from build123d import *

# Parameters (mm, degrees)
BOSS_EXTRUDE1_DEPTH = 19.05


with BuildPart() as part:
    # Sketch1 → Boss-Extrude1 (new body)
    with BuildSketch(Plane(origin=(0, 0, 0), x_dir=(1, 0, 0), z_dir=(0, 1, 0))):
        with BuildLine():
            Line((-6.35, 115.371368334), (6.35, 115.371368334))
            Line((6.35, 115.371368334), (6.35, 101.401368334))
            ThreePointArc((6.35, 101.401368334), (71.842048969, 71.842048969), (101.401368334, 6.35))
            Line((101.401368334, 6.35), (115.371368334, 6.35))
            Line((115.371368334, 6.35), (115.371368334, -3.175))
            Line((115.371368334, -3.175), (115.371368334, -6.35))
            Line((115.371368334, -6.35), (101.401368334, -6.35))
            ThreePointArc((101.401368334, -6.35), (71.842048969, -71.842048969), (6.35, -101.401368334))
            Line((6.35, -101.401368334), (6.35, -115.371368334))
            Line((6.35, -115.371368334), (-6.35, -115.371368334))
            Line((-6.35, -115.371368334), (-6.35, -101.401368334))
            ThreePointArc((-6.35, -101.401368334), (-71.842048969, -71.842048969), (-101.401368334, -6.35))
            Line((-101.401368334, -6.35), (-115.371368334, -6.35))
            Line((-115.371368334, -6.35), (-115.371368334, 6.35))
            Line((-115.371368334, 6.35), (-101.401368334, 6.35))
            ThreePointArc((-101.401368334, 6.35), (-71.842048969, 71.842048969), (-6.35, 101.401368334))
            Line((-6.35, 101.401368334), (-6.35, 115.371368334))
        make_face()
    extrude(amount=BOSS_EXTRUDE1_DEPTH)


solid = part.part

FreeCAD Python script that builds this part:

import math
import FreeCAD as App
import Part
import Sketcher
from FreeCAD import Vector
Q = App.Units.Quantity

doc = App.newDocument("Part")
body = doc.addObject("PartDesign::Body", "Body")

# Sketch on XZ plane
sketch1 = doc.addObject("Sketcher::SketchObject", "Sketch")
body.addObject(sketch1)
sketch1.AttachmentSupport = (doc.XZ_Plane, [""])
sketch1.MapMode = "FlatFace"
sketch1.addGeometry([
    Part.LineSegment(Vector(6.35, -115.371368, 0), Vector(-6.35, -115.371368, 0)),  # 0
    Part.LineSegment(Vector(-6.35, -115.371368, 0), Vector(-6.35, -101.401368, 0)),  # 1
    Part.ArcOfCircle(Part.Circle(Vector(0, 0, 0), Vector(0, 0, 1), 101.6), math.radians(-176.416678), math.radians(-93.583322)),  # 2
    Part.LineSegment(Vector(-101.401368, -6.35, 0), Vector(-115.371368, -6.35, 0)),  # 3
    Part.LineSegment(Vector(-115.371368, -6.35, 0), Vector(-115.371368, 6.35, 0)),  # 4
    Part.LineSegment(Vector(-115.371368, 6.35, 0), Vector(-101.401368, 6.35, 0)),  # 5
    Part.ArcOfCircle(Part.Circle(Vector(0, 0, 0), Vector(0, 0, 1), 101.6), math.radians(93.583322), math.radians(176.416678)),  # 6
    Part.LineSegment(Vector(-6.35, 101.401368, 0), Vector(-6.35, 115.371368, 0)),  # 7
    Part.LineSegment(Vector(-6.35, 115.371368, 0), Vector(6.35, 115.371368, 0)),  # 8
    Part.LineSegment(Vector(6.35, 115.371368, 0), Vector(6.35, 101.401368, 0)),  # 9
    Part.ArcOfCircle(Part.Circle(Vector(0, 0, 0), Vector(0, 0, 1), 101.6), math.radians(3.583322), math.radians(86.416678)),  # 10
    Part.LineSegment(Vector(101.401368, 6.35, 0), Vector(115.371368, 6.35, 0)),  # 11
    Part.LineSegment(Vector(115.371368, 6.35, 0), Vector(115.371368, -6.35, 0)),  # 12
    Part.LineSegment(Vector(115.371368, -6.35, 0), Vector(101.401368, -6.35, 0)),  # 13
    Part.ArcOfCircle(Part.Circle(Vector(0, 0, 0), Vector(0, 0, 1), 101.6), math.radians(-86.416678), math.radians(-3.583322)),  # 14
    Part.LineSegment(Vector(6.35, -101.401368, 0), Vector(6.35, -115.371368, 0)),  # 15
], False)
sketch1.addConstraint([
    Sketcher.Constraint("Coincident", 0, 2, 1, 1),
    Sketcher.Constraint("Coincident", 1, 2, 2, 2),
    Sketcher.Constraint("Coincident", 2, 1, 3, 1),
    Sketcher.Constraint("Coincident", 3, 2, 4, 1),
    Sketcher.Constraint("Coincident", 4, 2, 5, 1),
    Sketcher.Constraint("Coincident", 5, 2, 6, 2),
    Sketcher.Constraint("Coincident", 6, 1, 7, 1),
    Sketcher.Constraint("Coincident", 7, 2, 8, 1),
    Sketcher.Constraint("Coincident", 8, 2, 9, 1),
    Sketcher.Constraint("Coincident", 9, 2, 10, 2),
    Sketcher.Constraint("Coincident", 10, 1, 11, 1),
    Sketcher.Constraint("Coincident", 11, 2, 12, 1),
    Sketcher.Constraint("Coincident", 12, 2, 13, 1),
    Sketcher.Constraint("Coincident", 13, 2, 14, 2),
    Sketcher.Constraint("Coincident", 14, 1, 15, 1),
    Sketcher.Constraint("Coincident", 15, 2, 0, 1),
    Sketcher.Constraint("Horizontal", 0),
    Sketcher.Constraint("Vertical", 1),
    Sketcher.Constraint("Horizontal", 3),
    Sketcher.Constraint("Vertical", 4),
    Sketcher.Constraint("Horizontal", 5),
    Sketcher.Constraint("Vertical", 7),
    Sketcher.Constraint("Horizontal", 8),
    Sketcher.Constraint("Vertical", 9),
    Sketcher.Constraint("Horizontal", 11),
    Sketcher.Constraint("Vertical", 12),
    Sketcher.Constraint("Horizontal", 13),
    Sketcher.Constraint("Vertical", 15),
    Sketcher.Constraint("Coincident", 2, 3, -1, 1),
    Sketcher.Constraint("Coincident", 6, 3, -1, 1),
    Sketcher.Constraint("Coincident", 10, 3, -1, 1),
    Sketcher.Constraint("Coincident", 14, 3, -1, 1),
    Sketcher.Constraint("Equal", 2, 6),
    Sketcher.Constraint("Equal", 6, 10),
    Sketcher.Constraint("Equal", 10, 14),
    Sketcher.Constraint("Symmetric", 0, 2, 8, 2, -1, 1),
    Sketcher.Constraint("Symmetric", 3, 2, 11, 2, -1, 1),
    Sketcher.Constraint("Horizontal", 6, 1, 9, 2),
    Sketcher.Constraint("Horizontal", 5, 2, 10, 1),
    Sketcher.Constraint("Horizontal", 3, 2, 12, 2),
    Sketcher.Constraint("Horizontal", 1, 2, 14, 1),
    Sketcher.Constraint("Equal", 13, 1),
    Sketcher.Constraint("Equal", 8, 4),
    Sketcher.Constraint("Radius", 2, Q("4 in")),
    Sketcher.Constraint("DistanceX", 0, 2, 0, 1, Q("0.5 in")),
    Sketcher.Constraint("DistanceX", 3, 2, 3, 1, Q("0.55 in")),
])
pad1 = doc.addObject("PartDesign::Pad", "Pad")
body.addObject(pad1)
pad1.Profile = sketch1
pad1.Length = Q("0.75 in")
pad1.Reversed = True

doc.recompute()
